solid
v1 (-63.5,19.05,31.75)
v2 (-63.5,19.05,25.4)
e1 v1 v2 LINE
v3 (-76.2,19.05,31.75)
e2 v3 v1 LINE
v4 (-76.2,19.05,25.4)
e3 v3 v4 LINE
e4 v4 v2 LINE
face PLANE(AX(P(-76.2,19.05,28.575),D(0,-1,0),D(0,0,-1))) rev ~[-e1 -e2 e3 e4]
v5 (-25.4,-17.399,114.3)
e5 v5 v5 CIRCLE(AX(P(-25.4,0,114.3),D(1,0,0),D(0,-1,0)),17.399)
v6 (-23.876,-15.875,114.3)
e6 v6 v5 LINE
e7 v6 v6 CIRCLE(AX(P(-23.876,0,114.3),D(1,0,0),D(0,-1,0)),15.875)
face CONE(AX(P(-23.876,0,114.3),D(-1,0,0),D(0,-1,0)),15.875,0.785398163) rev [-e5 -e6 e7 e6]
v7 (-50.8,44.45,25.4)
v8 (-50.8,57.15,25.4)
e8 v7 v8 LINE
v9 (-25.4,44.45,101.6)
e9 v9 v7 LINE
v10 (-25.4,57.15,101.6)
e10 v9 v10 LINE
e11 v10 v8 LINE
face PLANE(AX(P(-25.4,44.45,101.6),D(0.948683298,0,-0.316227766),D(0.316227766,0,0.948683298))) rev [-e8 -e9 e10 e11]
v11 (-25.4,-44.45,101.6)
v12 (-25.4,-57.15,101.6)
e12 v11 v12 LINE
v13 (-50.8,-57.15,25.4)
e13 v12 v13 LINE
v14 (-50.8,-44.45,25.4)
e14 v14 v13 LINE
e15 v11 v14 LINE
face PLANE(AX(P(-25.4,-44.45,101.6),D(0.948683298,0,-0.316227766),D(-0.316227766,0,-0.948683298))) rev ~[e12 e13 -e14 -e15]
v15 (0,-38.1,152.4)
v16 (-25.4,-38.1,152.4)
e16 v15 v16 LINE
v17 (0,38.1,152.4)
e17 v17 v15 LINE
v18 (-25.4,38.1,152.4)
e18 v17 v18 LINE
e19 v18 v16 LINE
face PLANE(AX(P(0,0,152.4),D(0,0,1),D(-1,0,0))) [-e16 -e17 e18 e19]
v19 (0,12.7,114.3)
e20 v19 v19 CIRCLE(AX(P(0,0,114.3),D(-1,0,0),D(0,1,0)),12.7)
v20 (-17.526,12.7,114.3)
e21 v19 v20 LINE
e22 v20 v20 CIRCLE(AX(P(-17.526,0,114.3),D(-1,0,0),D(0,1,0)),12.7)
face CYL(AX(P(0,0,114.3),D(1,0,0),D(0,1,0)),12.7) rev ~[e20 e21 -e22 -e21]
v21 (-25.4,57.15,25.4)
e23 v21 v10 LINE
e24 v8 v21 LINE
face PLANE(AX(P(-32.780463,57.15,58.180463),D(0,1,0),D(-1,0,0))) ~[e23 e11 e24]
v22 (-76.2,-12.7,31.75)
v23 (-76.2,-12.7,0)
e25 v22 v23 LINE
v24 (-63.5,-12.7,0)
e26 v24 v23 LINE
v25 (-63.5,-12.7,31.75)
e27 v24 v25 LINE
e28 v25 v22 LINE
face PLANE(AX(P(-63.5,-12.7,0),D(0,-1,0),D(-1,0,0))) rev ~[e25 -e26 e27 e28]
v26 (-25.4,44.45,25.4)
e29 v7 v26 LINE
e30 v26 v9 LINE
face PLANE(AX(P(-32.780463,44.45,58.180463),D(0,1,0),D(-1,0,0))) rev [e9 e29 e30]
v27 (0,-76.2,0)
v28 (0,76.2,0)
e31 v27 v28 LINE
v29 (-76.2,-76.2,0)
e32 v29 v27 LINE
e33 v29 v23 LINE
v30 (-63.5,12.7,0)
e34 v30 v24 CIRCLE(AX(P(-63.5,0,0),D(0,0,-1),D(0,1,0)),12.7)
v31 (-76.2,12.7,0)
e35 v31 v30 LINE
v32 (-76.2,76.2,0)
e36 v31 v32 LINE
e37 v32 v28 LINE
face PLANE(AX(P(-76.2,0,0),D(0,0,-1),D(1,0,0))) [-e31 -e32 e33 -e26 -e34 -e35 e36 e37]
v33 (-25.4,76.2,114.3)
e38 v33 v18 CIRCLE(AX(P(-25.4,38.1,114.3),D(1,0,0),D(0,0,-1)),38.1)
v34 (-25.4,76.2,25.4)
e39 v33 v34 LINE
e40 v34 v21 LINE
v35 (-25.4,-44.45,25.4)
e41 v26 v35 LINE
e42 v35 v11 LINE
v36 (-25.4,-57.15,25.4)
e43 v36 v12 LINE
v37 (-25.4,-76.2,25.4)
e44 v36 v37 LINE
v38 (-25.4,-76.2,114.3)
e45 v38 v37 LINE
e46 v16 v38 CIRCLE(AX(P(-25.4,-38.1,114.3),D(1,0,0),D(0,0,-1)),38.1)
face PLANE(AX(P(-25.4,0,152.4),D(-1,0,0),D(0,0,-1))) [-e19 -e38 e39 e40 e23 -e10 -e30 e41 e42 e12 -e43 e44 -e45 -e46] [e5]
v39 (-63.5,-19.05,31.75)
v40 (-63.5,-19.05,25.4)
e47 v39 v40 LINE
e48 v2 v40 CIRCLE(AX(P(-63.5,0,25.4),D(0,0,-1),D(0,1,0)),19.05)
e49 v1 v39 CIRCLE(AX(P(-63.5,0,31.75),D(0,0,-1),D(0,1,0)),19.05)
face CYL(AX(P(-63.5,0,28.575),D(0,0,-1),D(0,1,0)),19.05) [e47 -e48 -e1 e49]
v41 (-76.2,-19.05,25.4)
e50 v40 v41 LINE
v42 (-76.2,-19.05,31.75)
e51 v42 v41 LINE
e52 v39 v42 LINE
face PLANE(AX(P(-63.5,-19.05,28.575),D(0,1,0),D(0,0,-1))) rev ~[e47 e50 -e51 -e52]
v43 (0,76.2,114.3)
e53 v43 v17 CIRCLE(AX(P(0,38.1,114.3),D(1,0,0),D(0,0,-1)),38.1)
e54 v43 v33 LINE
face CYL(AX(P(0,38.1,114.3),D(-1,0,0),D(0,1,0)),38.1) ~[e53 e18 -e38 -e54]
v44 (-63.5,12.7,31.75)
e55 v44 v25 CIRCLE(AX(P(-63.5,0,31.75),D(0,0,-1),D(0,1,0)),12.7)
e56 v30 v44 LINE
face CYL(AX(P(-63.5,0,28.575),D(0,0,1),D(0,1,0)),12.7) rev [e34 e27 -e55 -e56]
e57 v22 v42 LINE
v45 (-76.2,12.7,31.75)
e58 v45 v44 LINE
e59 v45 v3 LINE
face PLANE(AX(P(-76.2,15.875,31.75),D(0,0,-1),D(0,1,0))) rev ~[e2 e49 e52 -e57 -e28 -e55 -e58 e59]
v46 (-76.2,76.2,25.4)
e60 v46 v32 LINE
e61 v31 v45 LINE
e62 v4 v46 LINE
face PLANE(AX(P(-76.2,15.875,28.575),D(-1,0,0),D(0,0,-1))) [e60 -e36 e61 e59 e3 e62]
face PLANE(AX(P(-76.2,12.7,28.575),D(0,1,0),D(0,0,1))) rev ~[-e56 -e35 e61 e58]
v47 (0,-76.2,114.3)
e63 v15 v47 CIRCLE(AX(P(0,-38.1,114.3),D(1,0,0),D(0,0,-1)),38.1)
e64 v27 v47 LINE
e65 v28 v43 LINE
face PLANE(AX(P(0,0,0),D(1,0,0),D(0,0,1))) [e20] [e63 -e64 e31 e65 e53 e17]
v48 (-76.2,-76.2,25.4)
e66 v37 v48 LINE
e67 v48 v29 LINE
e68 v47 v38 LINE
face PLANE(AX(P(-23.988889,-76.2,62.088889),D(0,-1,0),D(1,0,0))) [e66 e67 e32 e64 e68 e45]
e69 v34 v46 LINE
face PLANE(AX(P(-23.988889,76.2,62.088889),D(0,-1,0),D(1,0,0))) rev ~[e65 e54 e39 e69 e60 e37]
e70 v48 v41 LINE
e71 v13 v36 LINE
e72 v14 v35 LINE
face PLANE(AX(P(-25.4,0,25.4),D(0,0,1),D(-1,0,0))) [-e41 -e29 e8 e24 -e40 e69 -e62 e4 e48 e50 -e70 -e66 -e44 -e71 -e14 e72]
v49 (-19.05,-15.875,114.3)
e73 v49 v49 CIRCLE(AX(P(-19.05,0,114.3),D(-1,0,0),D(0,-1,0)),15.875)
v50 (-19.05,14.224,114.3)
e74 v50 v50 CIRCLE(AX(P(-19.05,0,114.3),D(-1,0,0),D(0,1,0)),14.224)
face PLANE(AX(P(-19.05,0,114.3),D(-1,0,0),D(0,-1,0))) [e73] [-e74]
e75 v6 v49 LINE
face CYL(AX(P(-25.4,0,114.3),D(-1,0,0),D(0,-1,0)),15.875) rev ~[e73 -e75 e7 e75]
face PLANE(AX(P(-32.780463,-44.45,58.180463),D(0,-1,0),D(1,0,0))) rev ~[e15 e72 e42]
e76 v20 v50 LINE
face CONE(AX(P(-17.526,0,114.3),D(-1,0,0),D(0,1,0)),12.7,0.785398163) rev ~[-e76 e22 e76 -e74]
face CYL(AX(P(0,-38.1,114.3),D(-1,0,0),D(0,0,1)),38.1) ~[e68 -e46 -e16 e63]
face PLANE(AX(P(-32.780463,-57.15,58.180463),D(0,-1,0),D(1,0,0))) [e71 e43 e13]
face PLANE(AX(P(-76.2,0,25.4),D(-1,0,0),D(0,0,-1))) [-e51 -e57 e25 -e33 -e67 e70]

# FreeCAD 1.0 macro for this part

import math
import FreeCAD as App
import Part
import Sketcher

V = App.Vector
Q = App.Units.Quantity


def edges_at(feature, points):
    """Names of the edges that pass closest to the given points."""
    edges = feature.Shape.Edges
    near = lambda p: min(range(len(edges)), key=lambda i: edges[i].distToShape(Part.Vertex(*p))[0])
    return sorted({f"Edge{near(p) + 1}" for p in points})

doc = App.newDocument("Part")
body = doc.addObject("PartDesign::Body", "Body")

sketch1 = body.newObject("Sketcher::SketchObject", "Sketch")
sketch1.AttachmentSupport = (doc.getObject("XZ_Plane"), [""])
sketch1.MapMode = "FlatFace"
sketch1.addGeometry(Part.LineSegment(V(0, 0, 0), V(0, 152, 0)), False)
sketch1.addGeometry(Part.LineSegment(V(0, 152, 0), V(-25, 152, 0)), False)
sketch1.addGeometry(Part.LineSegment(V(-25, 152, 0), V(-25, 25, 0)), False)
sketch1.addGeometry(Part.LineSegment(V(-25, 25, 0), V(-76, 25, 0)), False)
sketch1.addGeometry(Part.LineSegment(V(-76, 25, 0), V(-76, 0, 0)), False)
sketch1.addGeometry(Part.LineSegment(V(-76, 0, 0), V(0, 0, 0)), False)
sketch1.addConstraint(Sketcher.Constraint("Coincident", 0, 2, 1, 1))
sketch1.addConstraint(Sketcher.Constraint("Coincident", 1, 2, 2, 1))
sketch1.addConstraint(Sketcher.Constraint("Coincident", 2, 2, 3, 1))
sketch1.addConstraint(Sketcher.Constraint("Coincident", 3, 2, 4, 1))
sketch1.addConstraint(Sketcher.Constraint("Coincident", 4, 2, 5, 1))
sketch1.addConstraint(Sketcher.Constraint("Coincident", 5, 2, 0, 1))
sketch1.addConstraint(Sketcher.Constraint("Vertical", 0))
sketch1.addConstraint(Sketcher.Constraint("Horizontal", 1))
sketch1.addConstraint(Sketcher.Constraint("Vertical", 2))
sketch1.addConstraint(Sketcher.Constraint("Horizontal", 3))
sketch1.addConstraint(Sketcher.Constraint("Vertical", 4))
sketch1.addConstraint(Sketcher.Constraint("Horizontal", 5))
sketch1.addConstraint(Sketcher.Constraint("Coincident", 5, 2, -1, 1))
sketch1.addConstraint(Sketcher.Constraint("Equal", 1, 4))
sketch1.addConstraint(Sketcher.Constraint("DistanceX", 1, 2, 1, 1, Q("1 in")))
sketch1.addConstraint(Sketcher.Constraint("DistanceX", 3, 2, 3, 1, Q("2 in")))
sketch1.addConstraint(Sketcher.Constraint("DistanceY", 0, 1, 0, 2, Q("6 in")))
pad1 = body.newObject("PartDesign::Pad", "Pad")
pad1.Profile = sketch1
pad1.Length = Q("6 in")
pad1.Midplane = True

sketch2 = body.newObject("Sketcher::SketchObject", "Sketch001")
sketch2.AttachmentSupport = (doc.getObject("YZ_Plane"), [""])
sketch2.MapMode = "FlatFace"
sketch2.addGeometry(Part.Circle(V(0, 114, 0), V(0, 0, 1), 13), False)
sketch2.addConstraint(Sketcher.Constraint("PointOnObject", 0, 3, -2))
sketch2.addConstraint(Sketcher.Constraint("Diameter", 0, Q("1 in")))
sketch2.addConstraint(Sketcher.Constraint("DistanceY", -1, 1, 0, 3, Q("4.5 in")))
pocket1 = body.newObject("PartDesign::Pocket", "Pocket")
pocket1.Profile = sketch2
pocket1.Type = "ThroughAll"

sketch3 = body.newObject("Sketcher::SketchObject", "Sketch002")
sketch3.AttachmentSupport = (doc.getObject("XY_Plane"), [""])
sketch3.MapMode = "FlatFace"
sketch3.addGeometry(Part.LineSegment(V(-64, -13, 0), V(-76, -13, 0)), False)
sketch3.addGeometry(Part.LineSegment(V(-76, -13, 0), V(-76, 13, 0)), False)
sketch3.addGeometry(Part.LineSegment(V(-76, 13, 0), V(-64, 13, 0)), False)
sketch3.addGeometry(Part.ArcOfCircle(Part.Circle(V(-64, 0, 0), V(0, 0, 1), 13), math.radians(-90), math.radians(90)), False)
sketch3.addConstraint(Sketcher.Constraint("Coincident", 0, 2, 1, 1))
sketch3.addConstraint(Sketcher.Constraint("Coincident", 1, 2, 2, 1))
sketch3.addConstraint(Sketcher.Constraint("Tangent", 2, 2, 3, 2))
sketch3.addConstraint(Sketcher.Constraint("Tangent", 3, 1, 0, 1))
sketch3.addConstraint(Sketcher.Constraint("Horizontal", 0))
sketch3.addConstraint(Sketcher.Constraint("Vertical", 1))
sketch3.addConstraint(Sketcher.Constraint("Horizontal", 2))
sketch3.addConstraint(Sketcher.Constraint("PointOnObject", 3, 3, -1))
sketch3.addConstraint(Sketcher.Constraint("Radius", 3, Q("0.5 in")))
sketch3.addConstraint(Sketcher.Constraint("DistanceX", 0, 2, 0, 1, Q("0.5 in")))
sketch3.addConstraint(Sketcher.Constraint("DistanceX", 0, 2, -1, 1, Q("3 in")))
pocket2 = body.newObject("PartDesign::Pocket", "Pocket001")
pocket2.Profile = sketch3
pocket2.Type = "ThroughAll"
pocket2.Reversed = True

sketch4 = body.newObject("Sketcher::SketchObject", "Sketch003")
sketch4.AttachmentSupport = (doc.getObject("YZ_Plane"), [""])
sketch4.MapMode = "FlatFace"
sketch4.AttachmentOffset = App.Placement(V(0, 0, -1 * 25.4), App.Rotation())
sketch4.addGeometry(Part.Circle(V(0, 114, 0), V(0, 0, 1), 16), False)
sketch4.addConstraint(Sketcher.Constraint("PointOnObject", 0, 3, -2))
sketch4.addConstraint(Sketcher.Constraint("Diameter", 0, Q("1.25 in")))
sketch4.addConstraint(Sketcher.Constraint("DistanceY", -1, 1, 0, 3, Q("4.5 in")))
pocket3 = body.newObject("PartDesign::Pocket", "Pocket002")
pocket3.Profile = sketch4
pocket3.Length = Q("0.25 in")
pocket3.Reversed = True
doc.recompute()

fillet = body.newObject("PartDesign::Fillet", "Fillet")
fillet.Base = (pocket3, edges_at(pocket3, [(-12.7, -76.2, 152.4), (-12.7, 76.2, 152.4)]))
fillet.Radius = Q("1.5 in")

sketch5 = body.newObject("Sketcher::SketchObject", "Sketch004")
sketch5.AttachmentSupport = (doc.getObject("XZ_Plane"), [""])
sketch5.MapMode = "FlatFace"
sketch5.AttachmentOffset = App.Placement(V(0, 0, 1.75 * 25.4), App.Rotation())
sketch5.addGeometry(Part.LineSegment(V(-25, 25, 0), V(-25, 102, 0)), False)
sketch5.addGeometry(Part.LineSegment(V(-25, 102, 0), V(-51, 25, 0)), False)
sketch5.addGeometry(Part.LineSegment(V(-51, 25, 0), V(-25, 25, 0)), False)
sketch5.addConstraint(Sketcher.Constraint("Coincident", 0, 2, 1, 1))
sketch5.addConstraint(Sketcher.Constraint("Coincident", 1, 2, 2, 1))
sketch5.addConstraint(Sketcher.Constraint("Coincident", 2, 2, 0, 1))
sketch5.addConstraint(Sketcher.Constraint("Vertical", 0))
sketch5.addConstraint(Sketcher.Constraint("Horizontal", 2))
sketch5.addConstraint(Sketcher.Constraint("DistanceX", 2, 1, 2, 2, Q("1 in")))
sketch5.addConstraint(Sketcher.Constraint("DistanceY", 0, 1, 0, 2, Q("3 in")))
sketch5.addConstraint(Sketcher.Constraint("DistanceX", 0, 2, -1, 1, Q("1 in")))
sketch5.addConstraint(Sketcher.Constraint("DistanceY", -1, 1, 0, 2, Q("4 in")))
pad2 = body.newObject("PartDesign::Pad", "Pad001")
pad2.Profile = sketch5
pad2.Length = Q("0.5 in")
body2 = doc.addObject("PartDesign::Body", "Body001")
doc.recompute()

body2.BaseFeature = body
doc.recompute()

mirroring = doc.addObject("Part::Mirroring", "Mirroring")
mirroring.Source = body
mirroring.Base = V(0, 0, 0)
mirroring.Normal = V(0, -1, 0)
body3 = doc.addObject("PartDesign::Body", "Body002")
body3.BaseFeature = mirroring
boolean = body2.newObject("PartDesign::Boolean", "Boolean")
boolean.Type = "Fuse"
boolean.addObjects([body3])
doc.recompute()

chamfer = body2.newObject("PartDesign::Chamfer", "Chamfer")
chamfer.Base = (boolean, edges_at(boolean, [(-25.4, 15.875, 114.3), (-19.05, -12.7, 114.3)]))
chamfer.Size = Q("0.06 in")

sketch6 = body2.newObject("Sketcher::SketchObject", "Sketch005")
sketch6.AttachmentSupport = (doc.getObject("YZ_Plane001"), [""])
sketch6.MapMode = "FlatFace"
sketch6.AttachmentOffset = App.Placement(V(0, 0, -3 * 25.4), App.Rotation())
sketch6.addGeometry(Part.LineSegment(V(19, 32, 0), V(19, 25, 0)), False)
sketch6.addGeometry(Part.LineSegment(V(19, 25, 0), V(13, 25, 0)), False)
sketch6.addGeometry(Part.LineSegment(V(13, 25, 0), V(13, 32, 0)), False)
sketch6.addGeometry(Part.LineSegment(V(13, 32, 0), V(19, 32, 0)), False)
sketch6.addConstraint(Sketcher.Constraint("Coincident", 0, 2, 1, 1))
sketch6.addConstraint(Sketcher.Constraint("Coincident", 1, 2, 2, 1))
sketch6.addConstraint(Sketcher.Constraint("Coincident", 2, 2, 3, 1))
sketch6.addConstraint(Sketcher.Constraint("Coincident", 3, 2, 0, 1))
sketch6.addConstraint(Sketcher.Constraint("Vertical", 0))
sketch6.addConstraint(Sketcher.Constraint("Horizontal", 1))
sketch6.addConstraint(Sketcher.Constraint("Vertical", 2))
sketch6.addConstraint(Sketcher.Constraint("Horizontal", 3))
sketch6.addConstraint(Sketcher.Constraint("Equal", 3, 0))
sketch6.addConstraint(Sketcher.Constraint("DistanceY", -1, 1, 0, 2, Q("1 in")))
sketch6.addConstraint(Sketcher.Constraint("DistanceX", 1, 2, 1, 1, Q("0.25 in")))
sketch6.addConstraint(Sketcher.Constraint("DistanceX", -1, 1, 1, 2, Q("0.5 in")))

sketch7 = body2.newObject("Sketcher::SketchObject", "Sketch006")
sketch7.AttachmentSupport = (doc.getObject("XY_Plane001"), [""])
sketch7.MapMode = "FlatFace"
sketch7.AttachmentOffset = App.Placement(V(0, 0, 1 * 25.4), App.Rotation())
sketch7.addGeometry(Part.LineSegment(V(-76, 13, 0), V(-64, 13, 0)), False)
sketch7.addGeometry(Part.ArcOfCircle(Part.Circle(V(-64, 0, 0), V(0, 0, 1), 13), math.radians(-90), math.radians(90)), False)
sketch7.addGeometry(Part.LineSegment(V(-64, -13, 0), V(-76, -13, 0)), False)
sketch7.addConstraint(Sketcher.Constraint("Tangent", 0, 2, 1, 2))
sketch7.addConstraint(Sketcher.Constraint("Tangent", 1, 1, 2, 1))
sketch7.addConstraint(Sketcher.Constraint("Horizontal", 0))
sketch7.addConstraint(Sketcher.Constraint("Horizontal", 2))
sketch7.addConstraint(Sketcher.Constraint("Symmetric", 0, 1, 2, 2, -1))
sketch7.addConstraint(Sketcher.Constraint("Radius", 1, Q("0.5 in")))
sketch7.addConstraint(Sketcher.Constraint("DistanceX", 0, 1, 0, 2, Q("0.5 in")))
sketch7.addConstraint(Sketcher.Constraint("DistanceX", 0, 1, -1, 1, Q("3 in")))
doc.recompute()

additivepipe = body2.newObject("PartDesign::AdditivePipe", "AdditivePipe")
additivepipe.Profile = sketch6
additivepipe.Spine = (sketch7, ["Edge1", "Edge2", "Edge3"])
mirroring.Visibility = False

doc.recompute()
